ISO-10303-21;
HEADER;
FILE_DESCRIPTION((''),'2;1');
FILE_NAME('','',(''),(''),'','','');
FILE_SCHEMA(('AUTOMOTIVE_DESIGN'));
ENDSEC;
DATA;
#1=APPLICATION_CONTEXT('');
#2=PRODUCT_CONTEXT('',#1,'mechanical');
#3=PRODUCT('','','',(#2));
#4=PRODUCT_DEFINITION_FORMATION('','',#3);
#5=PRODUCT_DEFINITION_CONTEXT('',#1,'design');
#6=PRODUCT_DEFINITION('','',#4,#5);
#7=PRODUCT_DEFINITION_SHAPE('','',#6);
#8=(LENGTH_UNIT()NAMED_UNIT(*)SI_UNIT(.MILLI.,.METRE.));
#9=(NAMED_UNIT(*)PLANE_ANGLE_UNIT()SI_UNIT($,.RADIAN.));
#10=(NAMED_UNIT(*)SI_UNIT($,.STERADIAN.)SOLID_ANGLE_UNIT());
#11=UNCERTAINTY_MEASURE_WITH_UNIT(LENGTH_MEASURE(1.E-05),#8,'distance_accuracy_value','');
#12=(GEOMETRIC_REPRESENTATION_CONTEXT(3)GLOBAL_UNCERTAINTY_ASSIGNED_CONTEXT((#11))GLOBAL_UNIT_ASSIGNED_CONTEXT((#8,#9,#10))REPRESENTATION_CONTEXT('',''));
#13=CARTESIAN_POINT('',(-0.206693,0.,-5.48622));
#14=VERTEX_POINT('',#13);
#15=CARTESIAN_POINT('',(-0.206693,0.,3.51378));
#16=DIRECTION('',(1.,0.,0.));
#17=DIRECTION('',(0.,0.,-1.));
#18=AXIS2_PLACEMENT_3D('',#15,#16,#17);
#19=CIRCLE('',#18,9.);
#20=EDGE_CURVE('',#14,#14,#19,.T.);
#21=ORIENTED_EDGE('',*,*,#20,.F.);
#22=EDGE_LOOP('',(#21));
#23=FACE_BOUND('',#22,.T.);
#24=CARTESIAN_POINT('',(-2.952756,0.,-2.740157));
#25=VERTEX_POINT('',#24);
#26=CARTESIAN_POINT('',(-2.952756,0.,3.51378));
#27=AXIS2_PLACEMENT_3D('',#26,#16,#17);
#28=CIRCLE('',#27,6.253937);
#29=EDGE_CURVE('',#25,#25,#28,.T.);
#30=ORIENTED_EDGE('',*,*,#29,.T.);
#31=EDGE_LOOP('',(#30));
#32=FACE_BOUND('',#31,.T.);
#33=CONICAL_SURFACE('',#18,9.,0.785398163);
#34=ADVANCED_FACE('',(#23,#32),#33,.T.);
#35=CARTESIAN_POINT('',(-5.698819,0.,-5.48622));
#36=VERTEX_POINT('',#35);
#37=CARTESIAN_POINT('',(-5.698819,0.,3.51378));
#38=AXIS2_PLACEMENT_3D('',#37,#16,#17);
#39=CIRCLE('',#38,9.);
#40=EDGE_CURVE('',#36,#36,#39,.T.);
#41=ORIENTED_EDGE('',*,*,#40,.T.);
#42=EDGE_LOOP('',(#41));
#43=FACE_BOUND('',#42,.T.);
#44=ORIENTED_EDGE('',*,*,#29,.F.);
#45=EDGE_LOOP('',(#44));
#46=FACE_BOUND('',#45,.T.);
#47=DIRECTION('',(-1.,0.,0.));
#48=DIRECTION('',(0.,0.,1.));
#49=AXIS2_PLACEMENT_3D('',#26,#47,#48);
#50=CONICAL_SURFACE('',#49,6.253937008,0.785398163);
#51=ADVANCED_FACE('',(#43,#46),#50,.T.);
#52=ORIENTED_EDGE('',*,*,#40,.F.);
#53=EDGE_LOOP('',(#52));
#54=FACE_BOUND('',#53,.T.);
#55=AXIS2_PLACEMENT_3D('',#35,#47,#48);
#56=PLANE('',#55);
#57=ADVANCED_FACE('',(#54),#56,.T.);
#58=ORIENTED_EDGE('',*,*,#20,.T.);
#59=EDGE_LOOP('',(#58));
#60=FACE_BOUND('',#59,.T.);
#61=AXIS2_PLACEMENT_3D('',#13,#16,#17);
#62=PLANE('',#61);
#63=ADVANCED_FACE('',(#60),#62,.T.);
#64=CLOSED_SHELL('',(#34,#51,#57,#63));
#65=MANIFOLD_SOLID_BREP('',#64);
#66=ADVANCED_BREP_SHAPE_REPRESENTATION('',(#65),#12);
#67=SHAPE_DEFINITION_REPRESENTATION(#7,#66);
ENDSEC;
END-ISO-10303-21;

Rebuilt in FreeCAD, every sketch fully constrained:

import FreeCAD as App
import Part
import Sketcher

doc = App.newDocument("Part")
body = doc.addObject("PartDesign::Body", "Body")

sketch1 = doc.addObject("Sketcher::SketchObject", "Sketch")
body.addObject(sketch1)
sketch1.AttachmentSupport = (doc.XZ_Plane, [""])
sketch1.MapMode = "FlatFace"
sketch1.addGeometry([
    Part.LineSegment(App.Vector(-5.7, -5.5, 0), App.Vector(-5.7, 3.5, 0)),
    Part.LineSegment(App.Vector(-5.7, 3.5, 0), App.Vector(-0.2, 3.5, 0)),
    Part.LineSegment(App.Vector(-0.2, 3.5, 0), App.Vector(-0.2, -5.5, 0)),
    Part.LineSegment(App.Vector(-0.2, -5.5, 0), App.Vector(-3, -2.7, 0)),
    Part.LineSegment(App.Vector(-3, -2.7, 0), App.Vector(-5.7, -5.5, 0)),
], False)
sketch1.addGeometry(Part.LineSegment(App.Vector(-0.2, 3.5, 0), App.Vector(-5.7, 3.5, 0)), True)
sketch1.addConstraint([
    Sketcher.Constraint("Coincident", 0, 2, 1, 1),
    Sketcher.Constraint("Coincident", 1, 2, 2, 1),
    Sketcher.Constraint("Coincident", 2, 2, 3, 1),
    Sketcher.Constraint("Coincident", 3, 2, 4, 1),
    Sketcher.Constraint("Coincident", 4, 2, 0, 1),
    Sketcher.Constraint("Vertical", 0),
    Sketcher.Constraint("Horizontal", 1),
    Sketcher.Constraint("Vertical", 2),
    Sketcher.Constraint("Horizontal", 5),
    Sketcher.Constraint("Coincident", 5, 1, 1, 2),
    Sketcher.Constraint("Perpendicular", 3, 4),
    Sketcher.Constraint("Horizontal", 2, 2, 4, 2),
    Sketcher.Constraint("Vertical", 4, 2, 5, 2),
    Sketcher.Constraint("Equal", 3, 4),
    Sketcher.Constraint("DistanceY", 0, 1, 0, 2, 9.0),
    Sketcher.Constraint("Distance", 3, 3.88352),
    Sketcher.Constraint("DistanceX", 0, 2, -1, 1, 5.698819),
    Sketcher.Constraint("DistanceY", -1, 1, 0, 2, 3.51378),
])
revolution = doc.addObject("PartDesign::Revolution", "Revolution")
body.addObject(revolution)
revolution.Profile = sketch1
revolution.ReferenceAxis = (sketch1, ["Axis0"])
revolution.Angle = 360

doc.recompute()
